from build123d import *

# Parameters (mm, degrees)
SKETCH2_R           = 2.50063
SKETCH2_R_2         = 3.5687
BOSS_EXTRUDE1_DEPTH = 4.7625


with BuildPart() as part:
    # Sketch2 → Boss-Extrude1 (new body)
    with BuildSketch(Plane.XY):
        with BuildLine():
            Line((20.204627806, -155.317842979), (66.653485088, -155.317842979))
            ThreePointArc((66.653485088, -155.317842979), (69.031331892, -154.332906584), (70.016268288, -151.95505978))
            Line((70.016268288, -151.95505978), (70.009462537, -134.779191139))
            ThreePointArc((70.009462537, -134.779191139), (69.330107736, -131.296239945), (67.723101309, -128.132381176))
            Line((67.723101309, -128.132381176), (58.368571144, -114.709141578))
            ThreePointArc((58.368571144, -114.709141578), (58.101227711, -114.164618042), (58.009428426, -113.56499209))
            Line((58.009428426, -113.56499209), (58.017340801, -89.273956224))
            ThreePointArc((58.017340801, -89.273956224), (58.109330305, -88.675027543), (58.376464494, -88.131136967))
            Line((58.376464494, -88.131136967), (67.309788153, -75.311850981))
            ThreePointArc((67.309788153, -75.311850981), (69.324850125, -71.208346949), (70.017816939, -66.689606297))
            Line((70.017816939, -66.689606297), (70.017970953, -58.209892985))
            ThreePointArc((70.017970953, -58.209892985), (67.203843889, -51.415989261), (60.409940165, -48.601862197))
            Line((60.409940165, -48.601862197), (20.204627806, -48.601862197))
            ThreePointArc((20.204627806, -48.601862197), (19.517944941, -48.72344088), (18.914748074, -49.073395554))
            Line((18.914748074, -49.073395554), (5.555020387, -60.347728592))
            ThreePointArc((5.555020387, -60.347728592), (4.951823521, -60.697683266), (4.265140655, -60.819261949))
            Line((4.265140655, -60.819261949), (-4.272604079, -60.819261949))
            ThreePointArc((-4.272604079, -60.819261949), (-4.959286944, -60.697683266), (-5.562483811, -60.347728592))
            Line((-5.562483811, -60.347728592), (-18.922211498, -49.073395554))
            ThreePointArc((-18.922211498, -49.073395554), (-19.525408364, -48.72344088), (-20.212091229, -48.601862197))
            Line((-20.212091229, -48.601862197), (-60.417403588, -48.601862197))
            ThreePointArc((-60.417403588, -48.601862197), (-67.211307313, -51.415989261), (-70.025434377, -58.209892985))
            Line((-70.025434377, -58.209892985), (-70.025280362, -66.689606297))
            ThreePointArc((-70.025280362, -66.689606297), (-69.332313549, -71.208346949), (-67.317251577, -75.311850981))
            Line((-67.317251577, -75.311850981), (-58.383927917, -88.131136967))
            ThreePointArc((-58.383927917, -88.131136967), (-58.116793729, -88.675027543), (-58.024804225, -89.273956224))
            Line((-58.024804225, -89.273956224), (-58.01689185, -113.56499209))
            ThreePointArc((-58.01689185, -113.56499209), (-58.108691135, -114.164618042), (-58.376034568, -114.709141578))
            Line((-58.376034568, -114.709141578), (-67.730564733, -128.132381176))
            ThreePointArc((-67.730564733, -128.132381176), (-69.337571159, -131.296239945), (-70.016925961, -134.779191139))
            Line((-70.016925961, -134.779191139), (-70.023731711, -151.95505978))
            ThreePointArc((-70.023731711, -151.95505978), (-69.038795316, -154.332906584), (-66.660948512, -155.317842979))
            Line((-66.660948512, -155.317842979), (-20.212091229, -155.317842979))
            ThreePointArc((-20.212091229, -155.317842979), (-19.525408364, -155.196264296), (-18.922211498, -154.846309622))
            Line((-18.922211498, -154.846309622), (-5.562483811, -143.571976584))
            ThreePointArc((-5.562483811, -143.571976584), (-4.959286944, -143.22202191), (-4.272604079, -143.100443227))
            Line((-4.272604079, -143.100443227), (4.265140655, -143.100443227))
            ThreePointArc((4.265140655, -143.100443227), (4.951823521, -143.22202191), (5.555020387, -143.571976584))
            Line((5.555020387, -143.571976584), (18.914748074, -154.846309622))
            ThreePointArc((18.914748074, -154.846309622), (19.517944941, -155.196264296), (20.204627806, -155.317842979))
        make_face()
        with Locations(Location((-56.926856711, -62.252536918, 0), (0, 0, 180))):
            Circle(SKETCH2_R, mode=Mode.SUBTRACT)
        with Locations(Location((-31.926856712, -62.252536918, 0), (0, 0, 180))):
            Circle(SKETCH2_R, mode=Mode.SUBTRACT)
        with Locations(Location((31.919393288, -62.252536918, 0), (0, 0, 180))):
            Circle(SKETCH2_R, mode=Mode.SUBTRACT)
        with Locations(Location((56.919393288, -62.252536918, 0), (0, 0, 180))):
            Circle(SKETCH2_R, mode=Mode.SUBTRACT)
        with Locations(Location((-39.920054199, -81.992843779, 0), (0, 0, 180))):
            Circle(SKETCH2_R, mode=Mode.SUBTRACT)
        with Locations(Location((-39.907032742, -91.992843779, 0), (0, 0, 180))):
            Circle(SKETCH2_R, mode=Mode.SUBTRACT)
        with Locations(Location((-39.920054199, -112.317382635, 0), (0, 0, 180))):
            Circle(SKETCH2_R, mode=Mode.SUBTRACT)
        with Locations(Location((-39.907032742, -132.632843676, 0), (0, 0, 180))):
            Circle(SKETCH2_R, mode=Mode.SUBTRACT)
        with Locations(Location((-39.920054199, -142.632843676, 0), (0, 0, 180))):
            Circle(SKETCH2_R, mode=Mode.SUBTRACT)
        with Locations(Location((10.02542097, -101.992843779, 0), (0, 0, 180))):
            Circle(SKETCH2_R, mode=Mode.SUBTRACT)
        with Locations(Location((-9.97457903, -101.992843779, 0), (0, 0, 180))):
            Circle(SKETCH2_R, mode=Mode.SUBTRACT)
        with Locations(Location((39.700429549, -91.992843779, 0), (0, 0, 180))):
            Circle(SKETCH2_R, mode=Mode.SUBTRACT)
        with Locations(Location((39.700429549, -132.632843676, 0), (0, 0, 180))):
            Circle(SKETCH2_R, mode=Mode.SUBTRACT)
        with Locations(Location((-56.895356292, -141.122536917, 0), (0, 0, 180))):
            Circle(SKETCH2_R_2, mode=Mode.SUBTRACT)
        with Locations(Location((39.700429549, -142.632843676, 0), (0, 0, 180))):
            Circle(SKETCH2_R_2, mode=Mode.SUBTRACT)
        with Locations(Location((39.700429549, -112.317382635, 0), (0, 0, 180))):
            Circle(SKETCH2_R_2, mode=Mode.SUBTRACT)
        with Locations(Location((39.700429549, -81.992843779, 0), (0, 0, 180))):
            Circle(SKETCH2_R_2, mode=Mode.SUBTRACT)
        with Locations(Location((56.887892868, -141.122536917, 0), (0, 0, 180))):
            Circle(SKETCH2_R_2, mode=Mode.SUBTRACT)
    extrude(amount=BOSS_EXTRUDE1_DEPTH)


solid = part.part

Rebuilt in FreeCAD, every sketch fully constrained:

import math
import FreeCAD as App
import Part
import Sketcher

V = App.Vector
Q = App.Units.Quantity

doc = App.newDocument("Part")
body = doc.addObject("PartDesign::Body", "Body")

sketch1 = doc.addObject("Sketcher::SketchObject", "Sketch")
body.addObject(sketch1)
sketch1.AttachmentSupport = (doc.XY_Plane, [""])
sketch1.MapMode = "FlatFace"
sketch1.addGeometry(Part.LineSegment(V(20.2, -155.3, 0), V(66.7, -155.3, 0)), False)
sketch1.addGeometry(Part.ArcOfCircle(Part.Circle(V(66.7, -152, 0), V(0, 0, 1), 3.4), math.radians(-90), math.radians(0)), False)
sketch1.addGeometry(Part.LineSegment(V(70, -152, 0), V(70, -134.8, 0)), False)
sketch1.addGeometry(Part.ArcOfCircle(Part.Circle(V(57.2, -135.5, 0), V(0, 0, 1), 12.8), math.radians(3), math.radians(35)), False)
sketch1.addGeometry(Part.LineSegment(V(67.7, -128.1, 0), V(58.4, -114.7, 0)), False)
sketch1.addGeometry(Part.ArcOfCircle(Part.Circle(V(60, -113.6, 0), V(0, 0, 1), 2), math.radians(180), math.radians(215)), False)
sketch1.addGeometry(Part.LineSegment(V(58, -113.6, 0), V(58, -89.3, 0)), False)
sketch1.addGeometry(Part.ArcOfCircle(Part.Circle(V(60, -89.3, 0), V(0, 0, 1), 2), math.radians(145), math.radians(180)), False)
sketch1.addGeometry(Part.LineSegment(V(58.4, -88.1, 0), V(67.3, -75.3, 0)), False)
sketch1.addGeometry(Part.ArcOfCircle(Part.Circle(V(54.9, -66.7, 0), V(0, 0, 1), 15.1), math.radians(-35), math.radians(0)), False)
sketch1.addGeometry(Part.LineSegment(V(70, -66.7, 0), V(70, -58.2, 0)), False)
sketch1.addGeometry(Part.ArcOfCircle(Part.Circle(V(60.4, -58.2, 0), V(0, 0, 1), 9.6), math.radians(0), math.radians(90)), False)
sketch1.addGeometry(Part.LineSegment(V(60.4, -48.6, 0), V(20.2, -48.6, 0)), False)
sketch1.addGeometry(Part.ArcOfCircle(Part.Circle(V(20.2, -50.6, 0), V(0, 0, 1), 2), math.radians(90), math.radians(130)), False)
sketch1.addGeometry(Part.LineSegment(V(18.9, -49.1, 0), V(5.6, -60.3, 0)), False)
sketch1.addGeometry(Part.ArcOfCircle(Part.Circle(V(4.3, -58.8, 0), V(0, 0, 1), 2), math.radians(-90), math.radians(-50)), False)
sketch1.addGeometry(Part.LineSegment(V(4.3, -60.8, 0), V(-4.3, -60.8, 0)), False)
sketch1.addGeometry(Part.ArcOfCircle(Part.Circle(V(-4.3, -58.8, 0), V(0, 0, 1), 2), math.radians(-130), math.radians(-90)), False)
sketch1.addGeometry(Part.LineSegment(V(-5.6, -60.3, 0), V(-18.9, -49.1, 0)), False)
sketch1.addGeometry(Part.ArcOfCircle(Part.Circle(V(-20.2, -50.6, 0), V(0, 0, 1), 2), math.radians(50), math.radians(90)), False)
sketch1.addGeometry(Part.LineSegment(V(-20.2, -48.6, 0), V(-60.4, -48.6, 0)), False)
sketch1.addGeometry(Part.ArcOfCircle(Part.Circle(V(-60.4, -58.2, 0), V(0, 0, 1), 9.6), math.radians(90), math.radians(180)), False)
sketch1.addGeometry(Part.LineSegment(V(-70, -58.2, 0), V(-70, -66.7, 0)), False)
sketch1.addGeometry(Part.ArcOfCircle(Part.Circle(V(-54.9, -66.7, 0), V(0, 0, 1), 15.1), math.radians(-180), math.radians(-145)), False)
sketch1.addGeometry(Part.LineSegment(V(-67.3, -75.3, 0), V(-58.4, -88.1, 0)), False)
sketch1.addGeometry(Part.ArcOfCircle(Part.Circle(V(-60, -89.3, 0), V(0, 0, 1), 2), math.radians(0), math.radians(35)), False)
sketch1.addGeometry(Part.LineSegment(V(-58, -89.3, 0), V(-58, -113.6, 0)), False)
sketch1.addGeometry(Part.ArcOfCircle(Part.Circle(V(-60, -113.6, 0), V(0, 0, 1), 2), math.radians(-35), math.radians(0)), False)
sketch1.addGeometry(Part.LineSegment(V(-58.4, -114.7, 0), V(-67.7, -128.1, 0)), False)
sketch1.addGeometry(Part.ArcOfCircle(Part.Circle(V(-57.2, -135.5, 0), V(0, 0, 1), 12.8), math.radians(145), math.radians(177)), False)
sketch1.addGeometry(Part.LineSegment(V(-70, -134.8, 0), V(-70, -152, 0)), False)
sketch1.addGeometry(Part.ArcOfCircle(Part.Circle(V(-66.7, -152, 0), V(0, 0, 1), 3.4), math.radians(180), math.radians(270)), False)
sketch1.addGeometry(Part.LineSegment(V(-66.7, -155.3, 0), V(-20.2, -155.3, 0)), False)
sketch1.addGeometry(Part.ArcOfCircle(Part.Circle(V(-20.2, -153.3, 0), V(0, 0, 1), 2), math.radians(-90), math.radians(-50)), False)
sketch1.addGeometry(Part.LineSegment(V(-18.9, -154.8, 0), V(-5.6, -143.6, 0)), False)
sketch1.addGeometry(Part.ArcOfCircle(Part.Circle(V(-4.3, -145.1, 0), V(0, 0, 1), 2), math.radians(90), math.radians(130)), False)
sketch1.addGeometry(Part.LineSegment(V(-4.3, -143.1, 0), V(4.3, -143.1, 0)), False)
sketch1.addGeometry(Part.ArcOfCircle(Part.Circle(V(4.3, -145.1, 0), V(0, 0, 1), 2), math.radians(50), math.radians(90)), False)
sketch1.addGeometry(Part.LineSegment(V(5.6, -143.6, 0), V(18.9, -154.8, 0)), False)
sketch1.addGeometry(Part.ArcOfCircle(Part.Circle(V(20.2, -153.3, 0), V(0, 0, 1), 2), math.radians(-130), math.radians(-90)), False)
sketch1.addGeometry(Part.Circle(V(-56.9, -141.1, 0), V(0, 0, 1), 3.6), False)
sketch1.addGeometry(Part.Circle(V(-39.9, -142.6, 0), V(0, 0, 1), 2.5), False)
sketch1.addGeometry(Part.Circle(V(-39.9, -132.6, 0), V(0, 0, 1), 2.5), False)
sketch1.addGeometry(Part.Circle(V(-39.9, -112.3, 0), V(0, 0, 1), 2.5), False)
sketch1.addGeometry(Part.Circle(V(39.7, -142.6, 0), V(0, 0, 1), 3.6), False)
sketch1.addGeometry(Part.Circle(V(56.9, -141.1, 0), V(0, 0, 1), 3.6), False)
sketch1.addGeometry(Part.Circle(V(39.7, -132.6, 0), V(0, 0, 1), 2.5), False)
sketch1.addGeometry(Part.Circle(V(39.7, -112.3, 0), V(0, 0, 1), 3.6), False)
sketch1.addGeometry(Part.Circle(V(-39.9, -92, 0), V(0, 0, 1), 2.5), False)
sketch1.addGeometry(Part.Circle(V(-39.9, -82, 0), V(0, 0, 1), 2.5), False)
sketch1.addGeometry(Part.Circle(V(-10, -102, 0), V(0, 0, 1), 2.5), False)
sketch1.addGeometry(Part.Circle(V(-56.9, -62.3, 0), V(0, 0, 1), 2.5), False)
sketch1.addGeometry(Part.Circle(V(-31.9, -62.3, 0), V(0, 0, 1), 2.5), False)
sketch1.addGeometry(Part.Circle(V(10, -102, 0), V(0, 0, 1), 2.5), False)
sketch1.addGeometry(Part.Circle(V(39.7, -92, 0), V(0, 0, 1), 2.5), False)
sketch1.addGeometry(Part.Circle(V(39.7, -82, 0), V(0, 0, 1), 3.6), False)
sketch1.addGeometry(Part.Circle(V(31.9, -62.3, 0), V(0, 0, 1), 2.5), False)
sketch1.addGeometry(Part.Circle(V(56.9, -62.3, 0), V(0, 0, 1), 2.5), False)
sketch1.addConstraint(Sketcher.Constraint("Tangent", 0, 2, 1, 1))
sketch1.addConstraint(Sketcher.Constraint("Coincident", 1, 2, 2, 1))
sketch1.addConstraint(Sketcher.Constraint("Coincident", 2, 2, 3, 1))
sketch1.addConstraint(Sketcher.Constraint("Tangent", 3, 2, 4, 1))
sketch1.addConstraint(Sketcher.Constraint("Tangent", 4, 2, 5, 2))
sketch1.addConstraint(Sketcher.Constraint("Tangent", 5, 1, 6, 1))
sketch1.addConstraint(Sketcher.Constraint("Tangent", 6, 2, 7, 2))
sketch1.addConstraint(Sketcher.Constraint("Tangent", 7, 1, 8, 1))
sketch1.addConstraint(Sketcher.Constraint("Tangent", 8, 2, 9, 1))
sketch1.addConstraint(Sketcher.Constraint("Tangent", 9, 2, 10, 1))
sketch1.addConstraint(Sketcher.Constraint("Coincident", 10, 2, 11, 1))
sketch1.addConstraint(Sketcher.Constraint("Tangent", 11, 2, 12, 1))
sketch1.addConstraint(Sketcher.Constraint("Tangent", 12, 2, 13, 1))
sketch1.addConstraint(Sketcher.Constraint("Tangent", 13, 2, 14, 1))
sketch1.addConstraint(Sketcher.Constraint("Tangent", 14, 2, 15, 2))
sketch1.addConstraint(Sketcher.Constraint("Tangent", 15, 1, 16, 1))
sketch1.addConstraint(Sketcher.Constraint("Tangent", 16, 2, 17, 2))
sketch1.addConstraint(Sketcher.Constraint("Tangent", 17, 1, 18, 1))
sketch1.addConstraint(Sketcher.Constraint("Tangent", 18, 2, 19, 1))
sketch1.addConstraint(Sketcher.Constraint("Tangent", 19, 2, 20, 1))
sketch1.addConstraint(Sketcher.Constraint("Tangent", 20, 2, 21, 1))
sketch1.addConstraint(Sketcher.Constraint("Coincident", 21, 2, 22, 1))
sketch1.addConstraint(Sketcher.Constraint("Tangent", 22, 2, 23, 1))
sketch1.addConstraint(Sketcher.Constraint("Tangent", 23, 2, 24, 1))
sketch1.addConstraint(Sketcher.Constraint("Tangent", 24, 2, 25, 2))
sketch1.addConstraint(Sketcher.Constraint("Tangent", 25, 1, 26, 1))
sketch1.addConstraint(Sketcher.Constraint("Tangent", 26, 2, 27, 2))
sketch1.addConstraint(Sketcher.Constraint("Tangent", 27, 1, 28, 1))
sketch1.addConstraint(Sketcher.Constraint("Tangent", 28, 2, 29, 1))
sketch1.addConstraint(Sketcher.Constraint("Coincident", 29, 2, 30, 1))
sketch1.addConstraint(Sketcher.Constraint("Coincident", 30, 2, 31, 1))
sketch1.addConstraint(Sketcher.Constraint("Tangent", 31, 2, 32, 1))
sketch1.addConstraint(Sketcher.Constraint("Tangent", 32, 2, 33, 1))
sketch1.addConstraint(Sketcher.Constraint("Tangent", 33, 2, 34, 1))
sketch1.addConstraint(Sketcher.Constraint("Tangent", 34, 2, 35, 2))
sketch1.addConstraint(Sketcher.Constraint("Tangent", 35, 1, 36, 1))
sketch1.addConstraint(Sketcher.Constraint("Tangent", 36, 2, 37, 2))
sketch1.addConstraint(Sketcher.Constraint("Tangent", 37, 1, 38, 1))
sketch1.addConstraint(Sketcher.Constraint("Tangent", 38, 2, 39, 1))
sketch1.addConstraint(Sketcher.Constraint("Tangent", 39, 2, 0, 1))
sketch1.addConstraint(Sketcher.Constraint("Horizontal", 0))
sketch1.addConstraint(Sketcher.Constraint("Horizontal", 12))
sketch1.addConstraint(Sketcher.Constraint("Horizontal", 16))
sketch1.addConstraint(Sketcher.Constraint("Horizontal", 20))
sketch1.addConstraint(Sketcher.Constraint("Horizontal", 32))
sketch1.addConstraint(Sketcher.Constraint("Horizontal", 36))
sketch1.addConstraint(Sketcher.Constraint("Equal", 5, 7))
sketch1.addConstraint(Sketcher.Constraint("Equal", 7, 13))
sketch1.addConstraint(Sketcher.Constraint("Equal", 13, 15))
sketch1.addConstraint(Sketcher.Constraint("Equal", 15, 17))
sketch1.addConstraint(Sketcher.Constraint("Equal", 17, 19))
sketch1.addConstraint(Sketcher.Constraint("Equal", 11, 21))
sketch1.addConstraint(Sketcher.Constraint("Equal", 9, 23))
sketch1.addConstraint(Sketcher.Constraint("Equal", 19, 25))
sketch1.addConstraint(Sketcher.Constraint("Equal", 25, 27))
sketch1.addConstraint(Sketcher.Constraint("Equal", 3, 29))
sketch1.addConstraint(Sketcher.Constraint("Equal", 1, 31))
sketch1.addConstraint(Sketcher.Constraint("Equal", 27, 33))
sketch1.addConstraint(Sketcher.Constraint("Equal", 33, 35))
sketch1.addConstraint(Sketcher.Constraint("Equal", 35, 37))
sketch1.addConstraint(Sketcher.Constraint("Equal", 37, 39))
sketch1.addConstraint(Sketcher.Constraint("Equal", 41, 42))
sketch1.addConstraint(Sketcher.Constraint("Equal", 42, 43))
sketch1.addConstraint(Sketcher.Constraint("Equal", 40, 44))
sketch1.addConstraint(Sketcher.Constraint("Equal", 44, 45))
sketch1.addConstraint(Sketcher.Constraint("Equal", 43, 46))
sketch1.addConstraint(Sketcher.Constraint("Equal", 45, 47))
sketch1.addConstraint(Sketcher.Constraint("Equal", 46, 48))
sketch1.addConstraint(Sketcher.Constraint("Equal", 48, 49))
sketch1.addConstraint(Sketcher.Constraint("Equal", 49, 50))
sketch1.addConstraint(Sketcher.Constraint("Equal", 50, 51))
sketch1.addConstraint(Sketcher.Constraint("Equal", 51, 52))
sketch1.addConstraint(Sketcher.Constraint("Equal", 52, 53))
sketch1.addConstraint(Sketcher.Constraint("Equal", 53, 54))
sketch1.addConstraint(Sketcher.Constraint("Equal", 47, 55))
sketch1.addConstraint(Sketcher.Constraint("Equal", 54, 56))
sketch1.addConstraint(Sketcher.Constraint("Equal", 56, 57))
sketch1.addConstraint(Sketcher.Constraint("Parallel", 14, 34))
sketch1.addConstraint(Sketcher.Constraint("Parallel", 18, 38))
sketch1.addConstraint(Sketcher.Constraint("Horizontal", 13, 3, 19, 3))
sketch1.addConstraint(Sketcher.Constraint("Horizontal", 9, 3, 23, 3))
sketch1.addConstraint(Sketcher.Constraint("Horizontal", 7, 3, 25, 3))
sketch1.addConstraint(Sketcher.Constraint("Horizontal", 5, 3, 27, 3))
sketch1.addConstraint(Sketcher.Constraint("Horizontal", 3, 3, 29, 3))
sketch1.addConstraint(Sketcher.Constraint("Horizontal", 1, 3, 31, 3))
sketch1.addConstraint(Sketcher.Constraint("Horizontal", 41, 3, 44, 3))
sketch1.addConstraint(Sketcher.Constraint("Horizontal", 40, 3, 45, 3))
sketch1.addConstraint(Sketcher.Constraint("Horizontal", 42, 3, 46, 3))
sketch1.addConstraint(Sketcher.Constraint("Horizontal", 43, 3, 47, 3))
sketch1.addConstraint(Sketcher.Constraint("Horizontal", 51, 3, 52, 3))
sketch1.addConstraint(Sketcher.Constraint("Horizontal", 50, 3, 53, 3))
sketch1.addConstraint(Sketcher.Constraint("Horizontal", 48, 3, 54, 3))
sketch1.addConstraint(Sketcher.Constraint("Horizontal", 49, 3, 55, 3))
sketch1.addConstraint(Sketcher.Constraint("Horizontal", 52, 3, 56, 3))
sketch1.addConstraint(Sketcher.Constraint("Horizontal", 56, 3, 57, 3))
sketch1.addConstraint(Sketcher.Constraint("Horizontal", 31, 3, 1, 2))
sketch1.addConstraint(Sketcher.Constraint("Horizontal", 21, 3, 10, 2))
sketch1.addConstraint(Sketcher.Constraint("Horizontal", 14, 2, 17, 1))
sketch1.addConstraint(Sketcher.Constraint("Horizontal", 10, 2, 21, 2))
sketch1.addConstraint(Sketcher.Constraint("Horizontal", 9, 2, 22, 2))
sketch1.addConstraint(Sketcher.Constraint("Horizontal", 8, 2, 23, 2))
sketch1.addConstraint(Sketcher.Constraint("Horizontal", 6, 2, 25, 1))
sketch1.addConstraint(Sketcher.Constraint("Horizontal", 4, 2, 27, 1))
sketch1.addConstraint(Sketcher.Constraint("Horizontal", 2, 2, 29, 2))
sketch1.addConstraint(Sketcher.Constraint("Horizontal", 1, 2, 30, 2))
sketch1.addConstraint(Sketcher.Constraint("Vertical", 19, 3, 33, 3))
sketch1.addConstraint(Sketcher.Constraint("Vertical", 17, 3, 35, 3))
sketch1.addConstraint(Sketcher.Constraint("Vertical", 15, 3, 37, 3))
sketch1.addConstraint(Sketcher.Constraint("Vertical", 41, 3, 43, 3))
sketch1.addConstraint(Sketcher.Constraint("Vertical", 44, 3, 46, 3))
sketch1.addConstraint(Sketcher.Constraint("Vertical", 46, 3, 47, 3))
sketch1.addConstraint(Sketcher.Constraint("Vertical", 42, 3, 48, 3))
sketch1.addConstraint(Sketcher.Constraint("Vertical", 43, 3, 49, 3))
sketch1.addConstraint(Sketcher.Constraint("Vertical", 47, 3, 54, 3))
sketch1.addConstraint(Sketcher.Constraint("Vertical", 54, 3, 55, 3))
sketch1.addConstraint(Sketcher.Constraint("Equal", 12, 20))
sketch1.addConstraint(Sketcher.Constraint("Equal", 0, 32))
sketch1.addConstraint(Sketcher.Constraint("Diameter", 40, Q("0.281 in")))
sketch1.addConstraint(Sketcher.Constraint("Diameter", 41, Q("0.1969 in")))
sketch1.addConstraint(Sketcher.Constraint("Radius", 5, Q("2 mm")))
sketch1.addConstraint(Sketcher.Constraint("Radius", 9, Q("15.081311 mm")))
sketch1.addConstraint(Sketcher.Constraint("Radius", 11, Q("9.608031 mm")))
sketch1.addConstraint(Sketcher.Constraint("DistanceX", 50, 3, -1, 1, Q("0.3927 in")))
sketch1.addConstraint(Sketcher.Constraint("Radius", 1, Q("3.362783 mm")))
sketch1.addConstraint(Sketcher.Constraint("Radius", 3, Q("12.836386 mm")))
sketch1.addConstraint(Sketcher.Constraint("DistanceX", -1, 1, 3, 2, Q("67.723101 mm")))
sketch1.addConstraint(Sketcher.Constraint("Distance", 2, Q("17.17587 mm")))
sketch1.addConstraint(Sketcher.Constraint("DistanceX", 0, 1, 0, 2, Q("46.448857 mm")))
sketch1.addConstraint(Sketcher.Constraint("DistanceX", 12, 2, 12, 1, Q("40.205312 mm")))
sketch1.addConstraint(Sketcher.Constraint("DistanceX", 16, 2, 16, 1, Q("8.537745 mm")))
sketch1.addConstraint(Sketcher.Constraint("DistanceY", 1, 3, -1, 1, Q("151.95506 mm")))
sketch1.addConstraint(Sketcher.Constraint("DistanceX", -1, 1, 5, 3, Q("60.009428 mm")))
sketch1.addConstraint(Sketcher.Constraint("DistanceX", -1, 1, 7, 3, Q("60.017341 mm")))
sketch1.addConstraint(Sketcher.Constraint("DistanceX", -1, 1, 11, 3, Q("60.40994 mm")))
sketch1.addConstraint(Sketcher.Constraint("DistanceX", -1, 1, 15, 3, Q("4.265141 mm")))
sketch1.addConstraint(Sketcher.Constraint("DistanceY", 15, 3, -1, 1, Q("58.819262 mm")))
sketch1.addConstraint(Sketcher.Constraint("DistanceX", 23, 3, -1, 1, Q("54.94397 mm")))
sketch1.addConstraint(Sketcher.Constraint("DistanceX", -1, 1, 44, 3, Q("39.70043 mm")))
sketch1.addConstraint(Sketcher.Constraint("DistanceX", -1, 1, 53, 3, Q("10.025421 mm")))
sketch1.addConstraint(Sketcher.Constraint("DistanceY", 3, 2, -1, 1, Q("128.132381 mm")))
sketch1.addConstraint(Sketcher.Constraint("DistanceX", -1, 1, 4, 2, Q("58.368571 mm")))
sketch1.addConstraint(Sketcher.Constraint("DistanceX", -1, 1, 8, 2, Q("67.309788 mm")))
sketch1.addConstraint(Sketcher.Constraint("DistanceY", 8, 2, -1, 1, Q("75.311851 mm")))
sketch1.addConstraint(Sketcher.Constraint("DistanceX", -1, 1, 13, 2, Q("18.914748 mm")))
sketch1.addConstraint(Sketcher.Constraint("DistanceX", 40, 3, -1, 1, Q("56.895356 mm")))
sketch1.addConstraint(Sketcher.Constraint("DistanceY", 40, 3, -1, 1, Q("141.122537 mm")))
sketch1.addConstraint(Sketcher.Constraint("DistanceX", 41, 3, -1, 1, Q("39.920054 mm")))
sketch1.addConstraint(Sketcher.Constraint("DistanceY", 41, 3, -1, 1, Q("142.632844 mm")))
sketch1.addConstraint(Sketcher.Constraint("DistanceX", 42, 3, -1, 1, Q("39.907033 mm")))
sketch1.addConstraint(Sketcher.Constraint("DistanceY", 42, 3, -1, 1, Q("132.632844 mm")))
sketch1.addConstraint(Sketcher.Constraint("DistanceY", 43, 3, -1, 1, Q("112.317383 mm")))
sketch1.addConstraint(Sketcher.Constraint("DistanceX", -1, 1, 45, 3, Q("56.887893 mm")))
sketch1.addConstraint(Sketcher.Constraint("DistanceY", 48, 3, -1, 1, Q("91.992844 mm")))
sketch1.addConstraint(Sketcher.Constraint("DistanceY", 49, 3, -1, 1, Q("81.992844 mm")))
sketch1.addConstraint(Sketcher.Constraint("DistanceY", 50, 3, -1, 1, Q("101.992844 mm")))
sketch1.addConstraint(Sketcher.Constraint("DistanceX", 51, 3, -1, 1, Q("56.926857 mm")))
sketch1.addConstraint(Sketcher.Constraint("DistanceY", 51, 3, -1, 1, Q("62.252537 mm")))
sketch1.addConstraint(Sketcher.Constraint("DistanceX", 52, 3, -1, 1, Q("31.926857 mm")))
sketch1.addConstraint(Sketcher.Constraint("DistanceX", -1, 1, 56, 3, Q("31.919393 mm")))
sketch1.addConstraint(Sketcher.Constraint("DistanceX", -1, 1, 57, 3, Q("56.919393 mm")))
pad1 = doc.addObject("PartDesign::Pad", "Pad")
body.addObject(pad1)
pad1.Profile = sketch1
pad1.Length = Q("0.1875 in")

doc.recompute()
